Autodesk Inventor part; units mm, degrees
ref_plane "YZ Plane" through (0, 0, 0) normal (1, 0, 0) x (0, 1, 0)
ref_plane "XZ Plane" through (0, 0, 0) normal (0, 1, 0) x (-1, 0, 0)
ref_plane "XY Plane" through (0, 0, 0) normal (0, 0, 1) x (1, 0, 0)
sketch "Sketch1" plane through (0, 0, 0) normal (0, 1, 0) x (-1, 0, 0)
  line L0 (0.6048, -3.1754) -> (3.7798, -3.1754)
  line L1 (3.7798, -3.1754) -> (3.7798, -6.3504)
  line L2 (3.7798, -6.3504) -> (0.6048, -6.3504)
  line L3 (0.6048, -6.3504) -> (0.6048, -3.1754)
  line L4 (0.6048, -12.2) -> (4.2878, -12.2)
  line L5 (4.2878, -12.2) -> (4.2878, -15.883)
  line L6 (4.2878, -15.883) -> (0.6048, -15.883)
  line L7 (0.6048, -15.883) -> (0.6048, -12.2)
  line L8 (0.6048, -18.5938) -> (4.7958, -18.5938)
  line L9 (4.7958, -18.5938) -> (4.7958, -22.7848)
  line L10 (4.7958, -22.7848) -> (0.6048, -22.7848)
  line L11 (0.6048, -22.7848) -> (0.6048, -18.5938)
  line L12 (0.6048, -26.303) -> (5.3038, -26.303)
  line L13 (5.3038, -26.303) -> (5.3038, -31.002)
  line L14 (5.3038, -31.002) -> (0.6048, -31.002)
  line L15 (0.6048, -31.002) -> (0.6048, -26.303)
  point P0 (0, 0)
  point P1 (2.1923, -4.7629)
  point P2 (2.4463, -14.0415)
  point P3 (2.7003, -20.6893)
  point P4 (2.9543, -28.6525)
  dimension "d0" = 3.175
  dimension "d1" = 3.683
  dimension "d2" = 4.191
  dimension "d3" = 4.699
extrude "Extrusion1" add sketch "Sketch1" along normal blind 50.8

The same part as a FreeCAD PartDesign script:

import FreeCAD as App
import Part
import Sketcher
Q = App.Units.Quantity


def add_polygon(sketch, points):
    """Adds a closed chain of lines whose ends are joined by coincident constraints."""
    first, n = sketch.GeometryCount, len(points)
    for a, b in zip(points, points[1:] + points[:1]):
        sketch.addGeometry(Part.LineSegment(App.Vector(*a, 0), App.Vector(*b, 0)), False)
    for i in range(n):
        sketch.addConstraint(Sketcher.Constraint("Coincident", first + i, 2, first + (i + 1) % n, 1))

doc = App.newDocument("Part")
params = doc.addObject("Spreadsheet::Sheet", "Params")
for row, (alias, value) in enumerate([
    ("sketch1_width", "0.125 in"),
    ("sketch1_width2", "0.145 in"),
    ("sketch1_width3", "0.165 in"),
    ("sketch1_width4", "0.185 in"),
    ("pad1_length", "2 in"),
], start=1):
    params.set(f"A{row}", alias)
    params.set(f"B{row}", "=" + value)
    params.setAlias(f"B{row}", alias)

body = doc.addObject("PartDesign::Body", "Body")
body.AllowCompound = True

# Sketch on XZ plane
sketch1 = body.newObject("Sketcher::SketchObject", "Sketch")
sketch1.AttachmentSupport = (doc.getObject("XZ_Plane"), [""])
sketch1.MapMode = "FlatFace"
add_polygon(sketch1, [(-3.7798, -3.1754), (-0.6048, -3.1754), (-0.6048, -6.3504), (-3.7798, -6.3504)])  # lines 0-3
add_polygon(sketch1, [(-4.2878, -12.2), (-0.6048, -12.2), (-0.6048, -15.883), (-4.2878, -15.883)])  # lines 4-7
add_polygon(sketch1, [(-4.7958, -18.5938), (-0.6048, -18.5938), (-0.6048, -22.7848), (-4.7958, -22.7848)])  # lines 8-11
add_polygon(sketch1, [(-5.3038, -26.303), (-0.6048, -26.303), (-0.6048, -31.002), (-5.3038, -31.002)])  # lines 12-15
sketch1.addConstraint(Sketcher.Constraint("Horizontal", 0))
sketch1.addConstraint(Sketcher.Constraint("Vertical", 1))
sketch1.addConstraint(Sketcher.Constraint("Horizontal", 2))
sketch1.addConstraint(Sketcher.Constraint("Vertical", 3))
sketch1.addConstraint(Sketcher.Constraint("Horizontal", 4))
sketch1.addConstraint(Sketcher.Constraint("Vertical", 5))
sketch1.addConstraint(Sketcher.Constraint("Horizontal", 6))
sketch1.addConstraint(Sketcher.Constraint("Vertical", 7))
sketch1.addConstraint(Sketcher.Constraint("Horizontal", 8))
sketch1.addConstraint(Sketcher.Constraint("Vertical", 9))
sketch1.addConstraint(Sketcher.Constraint("Horizontal", 10))
sketch1.addConstraint(Sketcher.Constraint("Vertical", 11))
sketch1.addConstraint(Sketcher.Constraint("Horizontal", 12))
sketch1.addConstraint(Sketcher.Constraint("Vertical", 13))
sketch1.addConstraint(Sketcher.Constraint("Horizontal", 14))
sketch1.addConstraint(Sketcher.Constraint("Vertical", 15))
sketch1.addConstraint(Sketcher.Constraint("Vertical", 1, 2, 4, 2))
sketch1.addConstraint(Sketcher.Constraint("Vertical", 5, 2, 8, 2))
sketch1.addConstraint(Sketcher.Constraint("Vertical", 9, 2, 12, 2))
sketch1.addConstraint(Sketcher.Constraint("Equal", 2, 1))
sketch1.addConstraint(Sketcher.Constraint("Equal", 6, 5))
sketch1.addConstraint(Sketcher.Constraint("Equal", 10, 9))
sketch1.addConstraint(Sketcher.Constraint("Equal", 14, 13))
sketch1.addConstraint(Sketcher.Constraint("DistanceX", 0, 1, 0, 2, Q("0.125 in")))
sketch1.addConstraint(Sketcher.Constraint("DistanceX", 4, 1, 4, 2, Q("0.145 in")))
sketch1.addConstraint(Sketcher.Constraint("DistanceX", 8, 1, 8, 2, Q("0.165 in")))
sketch1.addConstraint(Sketcher.Constraint("DistanceX", 12, 1, 12, 2, Q("0.185 in")))
sketch1.addConstraint(Sketcher.Constraint("DistanceY", 0, 2, -1, 1, Q("3.1754 mm")))
sketch1.addConstraint(Sketcher.Constraint("DistanceX", 0, 2, -1, 1, Q("0.0238 in")))
sketch1.addConstraint(Sketcher.Constraint("DistanceY", 4, 2, 1, 2, Q("0.2303 in")))
sketch1.addConstraint(Sketcher.Constraint("DistanceY", 12, 2, 9, 2, Q("0.1385 in")))
sketch1.addConstraint(Sketcher.Constraint("DistanceY", 8, 2, -1, 1, Q("18.5938 mm")))
sketch1.setExpression("Constraints[39]", "Params.sketch1_width")
sketch1.setExpression("Constraints[40]", "Params.sketch1_width2")
sketch1.setExpression("Constraints[41]", "Params.sketch1_width3")
sketch1.setExpression("Constraints[42]", "Params.sketch1_width4")
pad1 = body.newObject("PartDesign::Pad", "Pad")
pad1.Profile = sketch1
pad1.setExpression("Length", "Params.pad1_length")
pad1.Reversed = True

doc.recompute()
